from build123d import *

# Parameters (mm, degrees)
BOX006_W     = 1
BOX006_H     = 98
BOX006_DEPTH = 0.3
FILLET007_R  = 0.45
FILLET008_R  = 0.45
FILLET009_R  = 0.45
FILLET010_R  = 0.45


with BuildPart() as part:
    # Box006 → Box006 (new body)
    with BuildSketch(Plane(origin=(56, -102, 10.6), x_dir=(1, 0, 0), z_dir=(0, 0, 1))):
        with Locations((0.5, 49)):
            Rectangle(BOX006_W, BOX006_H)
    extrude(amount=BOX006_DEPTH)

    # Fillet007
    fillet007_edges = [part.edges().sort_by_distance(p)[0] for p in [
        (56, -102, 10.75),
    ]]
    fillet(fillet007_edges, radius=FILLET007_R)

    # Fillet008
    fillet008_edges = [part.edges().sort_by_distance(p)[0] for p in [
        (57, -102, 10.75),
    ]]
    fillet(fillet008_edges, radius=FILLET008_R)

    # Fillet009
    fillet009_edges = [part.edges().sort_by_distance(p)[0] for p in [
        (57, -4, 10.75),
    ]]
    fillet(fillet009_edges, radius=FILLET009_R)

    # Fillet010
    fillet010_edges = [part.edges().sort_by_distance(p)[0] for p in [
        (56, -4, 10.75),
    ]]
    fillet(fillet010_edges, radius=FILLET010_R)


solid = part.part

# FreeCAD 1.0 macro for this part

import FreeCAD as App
import Part
import Sketcher
from FreeCAD import Vector


def edges_at(feature, points):
    """Names of the edges that pass closest to the given points."""
    edges = feature.Shape.Edges
    near = lambda p: min(range(len(edges)), key=lambda i: edges[i].distToShape(Part.Vertex(*p))[0])
    return sorted({f"Edge{near(p) + 1}" for p in points})


def add_polygon(sketch, points):
    """Adds a closed chain of lines whose ends are joined by coincident constraints."""
    first, n = sketch.GeometryCount, len(points)
    for a, b in zip(points, points[1:] + points[:1]):
        sketch.addGeometry(Part.LineSegment(App.Vector(*a, 0), App.Vector(*b, 0)), False)
    for i in range(n):
        sketch.addConstraint(Sketcher.Constraint("Coincident", first + i, 2, first + (i + 1) % n, 1))

doc = App.newDocument("Part")
body = doc.addObject("PartDesign::Body", "Body")

sketch1 = body.newObject("Sketcher::SketchObject", "Sketch")
sketch1.AttachmentSupport = (doc.getObject("XY_Plane"), [""])
sketch1.MapMode = "FlatFace"
sketch1.AttachmentOffset = App.Placement(Vector(0, 0, 10.6), App.Rotation())
add_polygon(sketch1, [(56, -4), (56, -102), (57, -102), (57, -4)])
sketch1.addConstraint([
    Sketcher.Constraint("Vertical", 0),
    Sketcher.Constraint("Horizontal", 1),
    Sketcher.Constraint("Vertical", 2),
    Sketcher.Constraint("Horizontal", 3),
    Sketcher.Constraint("DistanceX", 1, 1, 1, 2, 1.0),
    Sketcher.Constraint("DistanceY", 0, 2, 0, 1, 98.0),
    Sketcher.Constraint("DistanceX", -1, 1, 0, 2, 56.0),
    Sketcher.Constraint("DistanceY", 0, 2, -1, 1, 102.0),
])
pad1 = body.newObject("PartDesign::Pad", "Pad")
pad1.Profile = sketch1
pad1.Length = 0.3
doc.recompute()

fillet = body.newObject("PartDesign::Fillet", "Fillet")
fillet.Base = (pad1, edges_at(pad1, [(56, -102, 10.75)]))
fillet.Radius = 0.45
doc.recompute()

fillet2 = body.newObject("PartDesign::Fillet", "Fillet001")
fillet2.Base = (fillet, edges_at(fillet, [(57, -102, 10.75)]))
fillet2.Radius = 0.45
doc.recompute()

fillet3 = body.newObject("PartDesign::Fillet", "Fillet002")
fillet3.Base = (fillet2, edges_at(fillet2, [(57, -4, 10.75)]))
fillet3.Radius = 0.45
doc.recompute()

fillet4 = body.newObject("PartDesign::Fillet", "Fillet003")
fillet4.Base = (fillet3, edges_at(fillet3, [(56, -4, 10.75)]))
fillet4.Radius = 0.45

doc.recompute()
